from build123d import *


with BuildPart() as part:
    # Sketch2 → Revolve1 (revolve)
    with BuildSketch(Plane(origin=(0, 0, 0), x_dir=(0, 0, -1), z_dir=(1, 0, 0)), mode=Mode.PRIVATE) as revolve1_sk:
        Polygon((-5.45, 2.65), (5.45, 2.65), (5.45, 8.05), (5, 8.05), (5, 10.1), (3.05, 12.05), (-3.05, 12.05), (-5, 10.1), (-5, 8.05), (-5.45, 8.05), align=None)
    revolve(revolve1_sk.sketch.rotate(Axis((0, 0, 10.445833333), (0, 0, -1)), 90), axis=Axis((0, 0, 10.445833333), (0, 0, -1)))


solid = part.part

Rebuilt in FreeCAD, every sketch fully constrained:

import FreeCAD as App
import Part
import Sketcher

doc = App.newDocument("Part")
body = doc.addObject("PartDesign::Body", "Body")

sketch1 = body.newObject("Sketcher::SketchObject", "Sketch")
sketch1.AttachmentSupport = (doc.getObject("YZ_Plane"), [""])
sketch1.MapMode = "FlatFace"
sketch1.addGeometry([
    Part.LineSegment(App.Vector(2.65, 5.45, 0), App.Vector(2.65, -5.45, 0)),
    Part.LineSegment(App.Vector(2.65, -5.45, 0), App.Vector(8.05, -5.45, 0)),
    Part.LineSegment(App.Vector(8.05, -5.45, 0), App.Vector(8.05, -5, 0)),
    Part.LineSegment(App.Vector(8.05, -5, 0), App.Vector(10.1, -5, 0)),
    Part.LineSegment(App.Vector(10.1, -5, 0), App.Vector(12.05, -3.05, 0)),
    Part.LineSegment(App.Vector(12.05, -3.05, 0), App.Vector(12.05, 3.05, 0)),
    Part.LineSegment(App.Vector(12.05, 3.05, 0), App.Vector(10.1, 5, 0)),
    Part.LineSegment(App.Vector(10.1, 5, 0), App.Vector(8.05, 5, 0)),
    Part.LineSegment(App.Vector(8.05, 5, 0), App.Vector(8.05, 5.45, 0)),
    Part.LineSegment(App.Vector(8.05, 5.45, 0), App.Vector(2.65, 5.45, 0)),
], False)
sketch1.addConstraint([
    Sketcher.Constraint("Coincident", 0, 2, 1, 1),
    Sketcher.Constraint("Coincident", 1, 2, 2, 1),
    Sketcher.Constraint("Coincident", 2, 2, 3, 1),
    Sketcher.Constraint("Coincident", 3, 2, 4, 1),
    Sketcher.Constraint("Coincident", 4, 2, 5, 1),
    Sketcher.Constraint("Coincident", 5, 2, 6, 1),
    Sketcher.Constraint("Coincident", 6, 2, 7, 1),
    Sketcher.Constraint("Coincident", 7, 2, 8, 1),
    Sketcher.Constraint("Coincident", 8, 2, 9, 1),
    Sketcher.Constraint("Coincident", 9, 2, 0, 1),
    Sketcher.Constraint("Vertical", 0),
    Sketcher.Constraint("Horizontal", 1),
    Sketcher.Constraint("Vertical", 2),
    Sketcher.Constraint("Horizontal", 3),
    Sketcher.Constraint("Vertical", 5),
    Sketcher.Constraint("Horizontal", 7),
    Sketcher.Constraint("Vertical", 8),
    Sketcher.Constraint("Horizontal", 9),
    Sketcher.Constraint("Symmetric", 3, 2, 6, 2, -1),
    Sketcher.Constraint("Symmetric", 1, 2, 8, 2, -1),
    Sketcher.Constraint("Perpendicular", 4, 6),
    Sketcher.Constraint("Equal", 4, 6),
    Sketcher.Constraint("DistanceX", 1, 1, 1, 2, 5.4),
    Sketcher.Constraint("DistanceY", 0, 2, 0, 1, 10.9),
    Sketcher.Constraint("DistanceY", 5, 1, 5, 2, 6.1),
    Sketcher.Constraint("DistanceY", 2, 2, -1, 1, 5.0),
    Sketcher.Constraint("DistanceX", 2, 2, 4, 2, 4.0),
    Sketcher.Constraint("DistanceX", -1, 1, 3, 2, 10.1),
])
revolution = body.newObject("PartDesign::Revolution", "Revolution")
revolution.Profile = sketch1
revolution.ReferenceAxis = (sketch1, ["V_Axis"])
revolution.Angle = 360

doc.recompute()
